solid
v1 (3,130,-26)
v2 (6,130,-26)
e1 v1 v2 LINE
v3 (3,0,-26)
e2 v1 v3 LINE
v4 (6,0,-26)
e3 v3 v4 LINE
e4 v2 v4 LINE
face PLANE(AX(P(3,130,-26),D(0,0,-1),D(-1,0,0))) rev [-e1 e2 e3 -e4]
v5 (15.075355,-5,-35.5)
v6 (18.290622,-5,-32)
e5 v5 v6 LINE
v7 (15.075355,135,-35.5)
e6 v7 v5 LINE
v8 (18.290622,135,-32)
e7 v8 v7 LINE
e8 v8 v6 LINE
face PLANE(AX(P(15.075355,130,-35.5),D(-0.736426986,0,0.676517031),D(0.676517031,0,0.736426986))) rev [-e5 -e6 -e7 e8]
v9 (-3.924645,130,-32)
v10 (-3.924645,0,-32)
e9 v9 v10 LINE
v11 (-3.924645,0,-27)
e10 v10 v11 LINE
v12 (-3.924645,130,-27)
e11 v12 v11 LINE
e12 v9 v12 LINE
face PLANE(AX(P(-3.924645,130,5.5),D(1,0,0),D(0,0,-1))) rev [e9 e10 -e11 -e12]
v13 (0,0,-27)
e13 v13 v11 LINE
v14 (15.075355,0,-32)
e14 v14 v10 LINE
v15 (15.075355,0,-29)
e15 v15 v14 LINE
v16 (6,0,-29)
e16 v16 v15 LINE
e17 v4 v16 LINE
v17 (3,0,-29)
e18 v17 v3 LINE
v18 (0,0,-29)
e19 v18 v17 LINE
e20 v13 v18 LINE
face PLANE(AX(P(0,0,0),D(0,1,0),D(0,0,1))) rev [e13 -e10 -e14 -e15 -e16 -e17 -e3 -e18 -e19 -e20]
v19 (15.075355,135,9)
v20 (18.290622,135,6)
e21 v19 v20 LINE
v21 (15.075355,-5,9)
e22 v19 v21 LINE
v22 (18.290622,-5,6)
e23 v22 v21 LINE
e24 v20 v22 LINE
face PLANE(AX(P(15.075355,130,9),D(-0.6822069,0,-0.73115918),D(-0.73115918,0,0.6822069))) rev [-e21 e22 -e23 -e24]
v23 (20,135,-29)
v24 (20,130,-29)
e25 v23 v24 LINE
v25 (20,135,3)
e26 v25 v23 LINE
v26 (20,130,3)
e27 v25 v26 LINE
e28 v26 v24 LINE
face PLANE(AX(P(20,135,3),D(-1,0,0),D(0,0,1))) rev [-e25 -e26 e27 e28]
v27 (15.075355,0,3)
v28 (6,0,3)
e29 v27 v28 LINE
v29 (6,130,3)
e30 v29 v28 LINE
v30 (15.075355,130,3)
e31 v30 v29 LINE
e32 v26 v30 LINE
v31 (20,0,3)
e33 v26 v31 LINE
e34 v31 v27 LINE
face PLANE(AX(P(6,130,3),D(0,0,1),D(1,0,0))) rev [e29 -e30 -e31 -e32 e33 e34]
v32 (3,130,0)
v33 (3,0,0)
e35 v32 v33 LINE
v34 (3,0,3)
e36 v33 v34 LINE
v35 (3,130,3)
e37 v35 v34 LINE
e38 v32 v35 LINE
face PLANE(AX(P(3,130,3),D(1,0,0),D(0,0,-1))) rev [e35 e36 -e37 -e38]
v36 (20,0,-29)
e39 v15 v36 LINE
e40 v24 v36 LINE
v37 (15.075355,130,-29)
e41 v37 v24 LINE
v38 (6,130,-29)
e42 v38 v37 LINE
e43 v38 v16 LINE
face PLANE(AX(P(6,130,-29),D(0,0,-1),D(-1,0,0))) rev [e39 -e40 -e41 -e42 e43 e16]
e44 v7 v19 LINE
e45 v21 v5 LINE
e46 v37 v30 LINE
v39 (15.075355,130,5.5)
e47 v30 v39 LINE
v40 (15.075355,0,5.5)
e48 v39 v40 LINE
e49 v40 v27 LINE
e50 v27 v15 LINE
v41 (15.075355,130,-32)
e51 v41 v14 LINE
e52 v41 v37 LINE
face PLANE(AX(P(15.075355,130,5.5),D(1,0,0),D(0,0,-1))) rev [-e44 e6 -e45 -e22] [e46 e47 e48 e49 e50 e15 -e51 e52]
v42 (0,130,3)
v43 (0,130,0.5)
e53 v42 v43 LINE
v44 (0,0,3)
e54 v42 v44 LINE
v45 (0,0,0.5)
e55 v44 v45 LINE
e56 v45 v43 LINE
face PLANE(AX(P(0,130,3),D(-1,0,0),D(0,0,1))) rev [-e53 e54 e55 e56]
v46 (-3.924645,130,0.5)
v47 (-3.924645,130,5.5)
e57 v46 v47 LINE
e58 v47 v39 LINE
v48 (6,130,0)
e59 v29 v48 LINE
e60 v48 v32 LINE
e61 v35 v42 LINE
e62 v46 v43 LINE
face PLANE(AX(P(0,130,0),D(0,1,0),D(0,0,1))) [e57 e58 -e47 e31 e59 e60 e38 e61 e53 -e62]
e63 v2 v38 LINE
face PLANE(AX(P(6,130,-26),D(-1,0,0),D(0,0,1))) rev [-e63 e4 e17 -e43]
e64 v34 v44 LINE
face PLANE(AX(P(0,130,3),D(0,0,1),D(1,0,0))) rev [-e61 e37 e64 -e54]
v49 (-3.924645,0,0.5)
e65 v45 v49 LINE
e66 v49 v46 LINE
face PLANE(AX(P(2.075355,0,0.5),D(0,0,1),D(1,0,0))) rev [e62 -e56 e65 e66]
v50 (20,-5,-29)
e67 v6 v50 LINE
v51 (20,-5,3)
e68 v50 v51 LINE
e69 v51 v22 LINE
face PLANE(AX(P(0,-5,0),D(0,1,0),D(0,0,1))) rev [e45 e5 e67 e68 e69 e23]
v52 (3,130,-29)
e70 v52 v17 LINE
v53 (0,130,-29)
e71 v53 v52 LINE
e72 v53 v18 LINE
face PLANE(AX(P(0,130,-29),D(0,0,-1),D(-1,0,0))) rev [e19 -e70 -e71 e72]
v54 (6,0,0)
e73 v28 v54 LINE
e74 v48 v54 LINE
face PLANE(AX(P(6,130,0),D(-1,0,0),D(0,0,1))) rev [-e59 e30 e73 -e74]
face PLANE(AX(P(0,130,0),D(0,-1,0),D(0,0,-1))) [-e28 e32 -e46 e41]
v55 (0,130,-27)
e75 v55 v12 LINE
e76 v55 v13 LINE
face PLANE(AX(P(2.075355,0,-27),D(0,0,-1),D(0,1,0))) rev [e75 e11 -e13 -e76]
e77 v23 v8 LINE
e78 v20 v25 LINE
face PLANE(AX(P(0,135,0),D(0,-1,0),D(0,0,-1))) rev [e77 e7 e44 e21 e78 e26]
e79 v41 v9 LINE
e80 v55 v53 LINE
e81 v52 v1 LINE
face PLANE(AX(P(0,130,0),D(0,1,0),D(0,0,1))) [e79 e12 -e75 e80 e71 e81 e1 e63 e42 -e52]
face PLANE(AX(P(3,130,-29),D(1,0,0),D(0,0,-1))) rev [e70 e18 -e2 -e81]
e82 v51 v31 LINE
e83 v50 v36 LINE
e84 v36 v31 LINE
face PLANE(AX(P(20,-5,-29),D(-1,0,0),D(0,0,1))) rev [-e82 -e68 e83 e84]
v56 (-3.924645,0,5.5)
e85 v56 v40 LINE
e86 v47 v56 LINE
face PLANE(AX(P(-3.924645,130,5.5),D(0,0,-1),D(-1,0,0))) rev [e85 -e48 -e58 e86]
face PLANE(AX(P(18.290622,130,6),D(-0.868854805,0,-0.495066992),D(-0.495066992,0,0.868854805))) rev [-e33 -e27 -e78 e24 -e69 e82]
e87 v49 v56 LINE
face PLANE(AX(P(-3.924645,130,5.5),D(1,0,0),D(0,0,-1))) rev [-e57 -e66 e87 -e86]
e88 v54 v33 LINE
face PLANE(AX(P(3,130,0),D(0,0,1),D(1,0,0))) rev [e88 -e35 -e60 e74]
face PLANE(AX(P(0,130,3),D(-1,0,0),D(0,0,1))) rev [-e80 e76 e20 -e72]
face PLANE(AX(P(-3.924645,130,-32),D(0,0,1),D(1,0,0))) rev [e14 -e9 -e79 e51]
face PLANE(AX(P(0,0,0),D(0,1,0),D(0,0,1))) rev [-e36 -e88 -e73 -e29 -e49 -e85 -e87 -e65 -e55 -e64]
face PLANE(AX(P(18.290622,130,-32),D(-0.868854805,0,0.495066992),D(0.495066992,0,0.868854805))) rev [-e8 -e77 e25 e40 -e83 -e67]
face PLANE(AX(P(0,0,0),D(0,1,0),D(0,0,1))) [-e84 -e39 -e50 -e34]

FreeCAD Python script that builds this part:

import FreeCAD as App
import Part
import Sketcher

V = App.Vector
Q = App.Units.Quantity

doc = App.newDocument("Part")
body = doc.addObject("PartDesign::Body", "Body")

# Sketch on XZ plane
sketch1 = body.newObject("Sketcher::SketchObject", "Sketch")
sketch1.AttachmentSupport = (doc.getObject("XZ_Plane"), [""])
sketch1.MapMode = "FlatFace"
sketch1.addGeometry(Part.LineSegment(V(0, 3, 0), V(0, -29, 0)), False)
sketch1.addGeometry(Part.LineSegment(V(0, -29, 0), V(3, -29, 0)), False)
sketch1.addGeometry(Part.LineSegment(V(3, -29, 0), V(3, -26, 0)), False)
sketch1.addGeometry(Part.LineSegment(V(3, -26, 0), V(6, -26, 0)), False)
sketch1.addGeometry(Part.LineSegment(V(6, -26, 0), V(6, -29, 0)), False)
sketch1.addGeometry(Part.LineSegment(V(6, -29, 0), V(20, -29, 0)), False)
sketch1.addGeometry(Part.LineSegment(V(20, -29, 0), V(18.290622, -32, 0)), False)
sketch1.addGeometry(Part.LineSegment(V(18.290622, -32, 0), V(15.075355, -35.5, 0)), False)
sketch1.addGeometry(Part.LineSegment(V(15.075355, -35.5, 0), V(15.075355, -32, 0)), False)
sketch1.addGeometry(Part.LineSegment(V(15.075355, -32, 0), V(-3.924645, -32, 0)), False)
sketch1.addGeometry(Part.LineSegment(V(-3.924645, -32, 0), V(-3.924645, 5.5, 0)), False)
sketch1.addGeometry(Part.LineSegment(V(-3.924645, 5.5, 0), V(15.075355, 5.5, 0)), False)
sketch1.addGeometry(Part.LineSegment(V(15.075355, 5.5, 0), V(15.075355, 9, 0)), False)
sketch1.addGeometry(Part.LineSegment(V(15.075355, 9, 0), V(18.290622, 6, 0)), False)
sketch1.addGeometry(Part.LineSegment(V(18.290622, 6, 0), V(20, 3, 0)), False)
sketch1.addGeometry(Part.LineSegment(V(20, 3, 0), V(6, 3, 0)), False)
sketch1.addGeometry(Part.LineSegment(V(6, 3, 0), V(6, 0, 0)), False)
sketch1.addGeometry(Part.LineSegment(V(6, 0, 0), V(3, 0, 0)), False)
sketch1.addGeometry(Part.LineSegment(V(3, 0, 0), V(3, 3, 0)), False)
sketch1.addGeometry(Part.LineSegment(V(3, 3, 0), V(0, 3, 0)), False)
sketch1.addConstraint(Sketcher.Constraint("Coincident", 0, 2, 1, 1))
sketch1.addConstraint(Sketcher.Constraint("Coincident", 1, 2, 2, 1))
sketch1.addConstraint(Sketcher.Constraint("Coincident", 2, 2, 3, 1))
sketch1.addConstraint(Sketcher.Constraint("Coincident", 3, 2, 4, 1))
sketch1.addConstraint(Sketcher.Constraint("Coincident", 4, 2, 5, 1))
sketch1.addConstraint(Sketcher.Constraint("Coincident", 5, 2, 6, 1))
sketch1.addConstraint(Sketcher.Constraint("Coincident", 6, 2, 7, 1))
sketch1.addConstraint(Sketcher.Constraint("Coincident", 7, 2, 8, 1))
sketch1.addConstraint(Sketcher.Constraint("Coincident", 8, 2, 9, 1))
sketch1.addConstraint(Sketcher.Constraint("Coincident", 9, 2, 10, 1))
sketch1.addConstraint(Sketcher.Constraint("Coincident", 10, 2, 11, 1))
sketch1.addConstraint(Sketcher.Constraint("Coincident", 11, 2, 12, 1))
sketch1.addConstraint(Sketcher.Constraint("Coincident", 12, 2, 13, 1))
sketch1.addConstraint(Sketcher.Constraint("Coincident", 13, 2, 14, 1))
sketch1.addConstraint(Sketcher.Constraint("Coincident", 14, 2, 15, 1))
sketch1.addConstraint(Sketcher.Constraint("Coincident", 15, 2, 16, 1))
sketch1.addConstraint(Sketcher.Constraint("Coincident", 16, 2, 17, 1))
sketch1.addConstraint(Sketcher.Constraint("Coincident", 17, 2, 18, 1))
sketch1.addConstraint(Sketcher.Constraint("Coincident", 18, 2, 19, 1))
sketch1.addConstraint(Sketcher.Constraint("Coincident", 19, 2, 0, 1))
sketch1.addConstraint(Sketcher.Constraint("Vertical", 0))
sketch1.addConstraint(Sketcher.Constraint("Horizontal", 1))
sketch1.addConstraint(Sketcher.Constraint("Vertical", 2))
sketch1.addConstraint(Sketcher.Constraint("Horizontal", 3))
sketch1.addConstraint(Sketcher.Constraint("Vertical", 4))
sketch1.addConstraint(Sketcher.Constraint("Horizontal", 5))
sketch1.addConstraint(Sketcher.Constraint("Vertical", 8))
sketch1.addConstraint(Sketcher.Constraint("Horizontal", 9))
sketch1.addConstraint(Sketcher.Constraint("Vertical", 10))
sketch1.addConstraint(Sketcher.Constraint("Horizontal", 11))
sketch1.addConstraint(Sketcher.Constraint("Vertical", 12))
sketch1.addConstraint(Sketcher.Constraint("Horizontal", 15))
sketch1.addConstraint(Sketcher.Constraint("Vertical", 16))
sketch1.addConstraint(Sketcher.Constraint("Horizontal", 17))
sketch1.addConstraint(Sketcher.Constraint("Vertical", 18))
sketch1.addConstraint(Sketcher.Constraint("Horizontal", 19))
sketch1.addConstraint(Sketcher.Constraint("PointOnObject", 0, 2, -2))
sketch1.addConstraint(Sketcher.Constraint("PointOnObject", 16, 2, -1))
sketch1.addConstraint(Sketcher.Constraint("Horizontal", 1, 2, 4, 2))
sketch1.addConstraint(Sketcher.Constraint("Horizontal", 6, 2, 8, 2))
sketch1.addConstraint(Sketcher.Constraint("Horizontal", 15, 2, 18, 2))
sketch1.addConstraint(Sketcher.Constraint("Vertical", 8, 2, 11, 2))
sketch1.addConstraint(Sketcher.Constraint("Vertical", 6, 2, 13, 2))
sketch1.addConstraint(Sketcher.Constraint("Vertical", 5, 2, 14, 2))
sketch1.addConstraint(Sketcher.Constraint("Vertical", 4, 2, 15, 2))
sketch1.addConstraint(Sketcher.Constraint("Vertical", 2, 2, 17, 2))
sketch1.addConstraint(Sketcher.Constraint("Equal", 1, 3))
sketch1.addConstraint(Sketcher.Constraint("Equal", 19, 2))
sketch1.addConstraint(Sketcher.Constraint("Equal", 8, 12))
sketch1.addConstraint(Sketcher.Constraint("Equal", 4, 16))
sketch1.addConstraint(Sketcher.Constraint("Equal", 6, 14))
sketch1.addConstraint(Sketcher.Constraint("DistanceX", 1, 1, 1, 2, Q("3 mm")))
sketch1.addConstraint(Sketcher.Constraint("DistanceX", 5, 1, 5, 2, Q("14 mm")))
sketch1.addConstraint(Sketcher.Constraint("DistanceX", 9, 2, 9, 1, Q("19 mm")))
sketch1.addConstraint(Sketcher.Constraint("DistanceY", 0, 2, 0, 1, Q("32 mm")))
sketch1.addConstraint(Sketcher.Constraint("DistanceY", 8, 1, 8, 2, Q("3.5 mm")))
sketch1.addConstraint(Sketcher.Constraint("DistanceY", 10, 1, 10, 2, Q("37.5 mm")))
sketch1.addConstraint(Sketcher.Constraint("DistanceY", 6, 2, -1, 1, Q("32 mm")))
sketch1.addConstraint(Sketcher.Constraint("Distance", 6, Q("3.452821 mm")))
sketch1.addConstraint(Sketcher.Constraint("Distance", 7, Q("4.752678 mm")))
pad1 = body.newObject("PartDesign::Pad", "Pad")
pad1.Profile = sketch1
pad1.Length = 130
pad1.Reversed = True

# Sketch on XZ plane
sketch2 = body.newObject("Sketcher::SketchObject", "Sketch001")
sketch2.AttachmentSupport = (doc.getObject("XZ_Plane"), [""])
sketch2.MapMode = "FlatFace"
sketch2.AttachmentOffset = App.Placement(V(0, 0, -130), App.Rotation())
sketch2.addGeometry(Part.LineSegment(V(15.075355, -35.5, 0), V(15.075355, 9, 0)), False)
sketch2.addGeometry(Part.LineSegment(V(15.075355, 9, 0), V(18.290622, 6, 0)), False)
sketch2.addGeometry(Part.LineSegment(V(18.290622, 6, 0), V(20, 3, 0)), False)
sketch2.addGeometry(Part.LineSegment(V(20, 3, 0), V(20, -29, 0)), False)
sketch2.addGeometry(Part.LineSegment(V(20, -29, 0), V(18.290622, -32, 0)), False)
sketch2.addGeometry(Part.LineSegment(V(18.290622, -32, 0), V(15.075355, -35.5, 0)), False)
sketch2.addConstraint(Sketcher.Constraint("Coincident", 0, 2, 1, 1))
sketch2.addConstraint(Sketcher.Constraint("Coincident", 1, 2, 2, 1))
sketch2.addConstraint(Sketcher.Constraint("Coincident", 2, 2, 3, 1))
sketch2.addConstraint(Sketcher.Constraint("Coincident", 3, 2, 4, 1))
sketch2.addConstraint(Sketcher.Constraint("Coincident", 4, 2, 5, 1))
sketch2.addConstraint(Sketcher.Constraint("Coincident", 5, 2, 0, 1))
sketch2.addConstraint(Sketcher.Constraint("Vertical", 0))
sketch2.addConstraint(Sketcher.Constraint("Vertical", 3))
sketch2.addConstraint(Sketcher.Constraint("Vertical", 1, 2, 4, 2))
sketch2.addConstraint(Sketcher.Constraint("Equal", 2, 4))
sketch2.addConstraint(Sketcher.Constraint("DistanceY", 3, 2, 3, 1, Q("32 mm")))
sketch2.addConstraint(Sketcher.Constraint("DistanceY", 0, 1, 0, 2, Q("44.5 mm")))
sketch2.addConstraint(Sketcher.Constraint("DistanceY", -1, 1, 0, 2, Q("9 mm")))
sketch2.addConstraint(Sketcher.Constraint("DistanceY", -1, 1, 1, 2, Q("6 mm")))
sketch2.addConstraint(Sketcher.Constraint("DistanceX", -1, 1, 2, 2, Q("20 mm")))
sketch2.addConstraint(Sketcher.Constraint("DistanceY", -1, 1, 2, 2, Q("3 mm")))
sketch2.addConstraint(Sketcher.Constraint("Distance", 2, Q("3.452821 mm")))
sketch2.addConstraint(Sketcher.Constraint("Distance", 1, Q("4.397493 mm")))
pad2 = body.newObject("PartDesign::Pad", "Pad001")
pad2.Profile = sketch2
pad2.Length = 5
pad2.Reversed = True

# Sketch on XZ plane
sketch3 = body.newObject("Sketcher::SketchObject", "Sketch002")
sketch3.AttachmentSupport = (doc.getObject("XZ_Plane"), [""])
sketch3.MapMode = "FlatFace"
sketch3.addGeometry(Part.LineSegment(V(15.075355, 9, 0), V(15.075355, -35.5, 0)), False)
sketch3.addGeometry(Part.LineSegment(V(15.075355, -35.5, 0), V(18.290622, -32, 0)), False)
sketch3.addGeometry(Part.LineSegment(V(18.290622, -32, 0), V(20, -29, 0)), False)
sketch3.addGeometry(Part.LineSegment(V(20, -29, 0), V(20, 3, 0)), False)
sketch3.addGeometry(Part.LineSegment(V(20, 3, 0), V(18.290622, 6, 0)), False)
sketch3.addGeometry(Part.LineSegment(V(18.290622, 6, 0), V(15.075355, 9, 0)), False)
sketch3.addConstraint(Sketcher.Constraint("Coincident", 0, 2, 1, 1))
sketch3.addConstraint(Sketcher.Constraint("Coincident", 1, 2, 2, 1))
sketch3.addConstraint(Sketcher.Constraint("Coincident", 2, 2, 3, 1))
sketch3.addConstraint(Sketcher.Constraint("Coincident", 3, 2, 4, 1))
sketch3.addConstraint(Sketcher.Constraint("Coincident", 4, 2, 5, 1))
sketch3.addConstraint(Sketcher.Constraint("Coincident", 5, 2, 0, 1))
sketch3.addConstraint(Sketcher.Constraint("Vertical", 0))
sketch3.addConstraint(Sketcher.Constraint("Vertical", 3))
sketch3.addConstraint(Sketcher.Constraint("Vertical", 1, 2, 4, 2))
sketch3.addConstraint(Sketcher.Constraint("Equal", 2, 4))
sketch3.addConstraint(Sketcher.Constraint("DistanceY", 3, 1, 3, 2, Q("32 mm")))
sketch3.addConstraint(Sketcher.Constraint("DistanceY", 0, 2, 0, 1, Q("44.5 mm")))
sketch3.addConstraint(Sketcher.Constraint("DistanceY", 1, 2, -1, 1, Q("32 mm")))
sketch3.addConstraint(Sketcher.Constraint("DistanceX", -1, 1, 2, 2, Q("20 mm")))
sketch3.addConstraint(Sketcher.Constraint("DistanceY", 2, 2, -1, 1, Q("29 mm")))
sketch3.addConstraint(Sketcher.Constraint("DistanceY", -1, 1, 5, 2, Q("9 mm")))
sketch3.addConstraint(Sketcher.Constraint("Distance", 2, Q("3.452821 mm")))
sketch3.addConstraint(Sketcher.Constraint("Distance", 1, Q("4.752678 mm")))
pad3 = body.newObject("PartDesign::Pad", "Pad002")
pad3.Profile = sketch3
pad3.Length = 5

# Sketch on YZ plane
sketch4 = body.newObject("Sketcher::SketchObject", "Sketch003")
sketch4.AttachmentSupport = (doc.getObject("YZ_Plane"), [""])
sketch4.MapMode = "FlatFace"
sketch4.AttachmentOffset = App.Placement(V(0, 0, -3.924645), App.Rotation())
sketch4.addGeometry(Part.LineSegment(V(130, 0.5, 0), V(130, -27, 0)), False)
sketch4.addGeometry(Part.LineSegment(V(130, -27, 0), V(0, -27, 0)), False)
sketch4.addGeometry(Part.LineSegment(V(0, -27, 0), V(0, 0.5, 0)), False)
sketch4.addGeometry(Part.LineSegment(V(0, 0.5, 0), V(130, 0.5, 0)), False)
sketch4.addConstraint(Sketcher.Constraint("Coincident", 0, 2, 1, 1))
sketch4.addConstraint(Sketcher.Constraint("Coincident", 1, 2, 2, 1))
sketch4.addConstraint(Sketcher.Constraint("Coincident", 2, 2, 3, 1))
sketch4.addConstraint(Sketcher.Constraint("Coincident", 3, 2, 0, 1))
sketch4.addConstraint(Sketcher.Constraint("Vertical", 0))
sketch4.addConstraint(Sketcher.Constraint("Horizontal", 1))
sketch4.addConstraint(Sketcher.Constraint("Vertical", 2))
sketch4.addConstraint(Sketcher.Constraint("Horizontal", 3))
sketch4.addConstraint(Sketcher.Constraint("PointOnObject", 1, 2, -2))
sketch4.addConstraint(Sketcher.Constraint("DistanceX", 1, 2, 1, 1, Q("130 mm")))
sketch4.addConstraint(Sketcher.Constraint("DistanceY", 0, 2, 0, 1, Q("27.5 mm")))
sketch4.addConstraint(Sketcher.Constraint("DistanceY", 0, 2, -1, 1, Q("27 mm")))
pocket1 = body.newObject("PartDesign::Pocket", "Pocket")
pocket1.Profile = sketch4
pocket1.Length = 6
pocket1.Reversed = True

doc.recompute()
